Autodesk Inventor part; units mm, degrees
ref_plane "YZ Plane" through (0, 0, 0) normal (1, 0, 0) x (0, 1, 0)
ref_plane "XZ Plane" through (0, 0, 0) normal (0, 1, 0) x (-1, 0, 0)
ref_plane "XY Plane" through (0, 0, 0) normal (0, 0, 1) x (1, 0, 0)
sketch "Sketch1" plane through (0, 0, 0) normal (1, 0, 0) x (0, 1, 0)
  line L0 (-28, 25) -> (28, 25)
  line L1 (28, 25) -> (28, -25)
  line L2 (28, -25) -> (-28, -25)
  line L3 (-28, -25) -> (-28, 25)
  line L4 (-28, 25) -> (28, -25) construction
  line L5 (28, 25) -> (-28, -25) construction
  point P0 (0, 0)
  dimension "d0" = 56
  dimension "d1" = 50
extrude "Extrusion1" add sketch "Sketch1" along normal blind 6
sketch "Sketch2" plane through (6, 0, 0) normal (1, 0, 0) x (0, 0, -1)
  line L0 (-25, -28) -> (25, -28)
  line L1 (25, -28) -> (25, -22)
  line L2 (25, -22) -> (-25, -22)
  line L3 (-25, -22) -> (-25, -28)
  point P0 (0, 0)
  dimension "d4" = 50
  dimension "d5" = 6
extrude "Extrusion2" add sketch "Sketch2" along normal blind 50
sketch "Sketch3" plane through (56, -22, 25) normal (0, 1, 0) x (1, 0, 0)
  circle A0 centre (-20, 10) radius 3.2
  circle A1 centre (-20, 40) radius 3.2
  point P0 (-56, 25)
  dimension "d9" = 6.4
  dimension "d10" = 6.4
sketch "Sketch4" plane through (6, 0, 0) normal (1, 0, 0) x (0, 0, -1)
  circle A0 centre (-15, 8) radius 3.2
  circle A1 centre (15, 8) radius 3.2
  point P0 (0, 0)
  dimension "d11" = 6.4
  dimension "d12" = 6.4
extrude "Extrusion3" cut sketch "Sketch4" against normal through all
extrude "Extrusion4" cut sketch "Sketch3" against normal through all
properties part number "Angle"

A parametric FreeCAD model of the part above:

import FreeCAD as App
import Part
import Sketcher
from FreeCAD import Vector

doc = App.newDocument("Part")
body = doc.addObject("PartDesign::Body", "Body")

# Sketch on YZ plane
sketch1 = body.newObject("Sketcher::SketchObject", "Sketch")
sketch1.AttachmentSupport = (doc.getObject("YZ_Plane"), [""])
sketch1.MapMode = "FlatFace"
sketch1.addGeometry(Part.LineSegment(Vector(28, 25, 0), Vector(-28, 25, 0)), False)
sketch1.addGeometry(Part.LineSegment(Vector(-28, 25, 0), Vector(-28, -25, 0)), False)
sketch1.addGeometry(Part.LineSegment(Vector(-28, -25, 0), Vector(28, -25, 0)), False)
sketch1.addGeometry(Part.LineSegment(Vector(28, -25, 0), Vector(28, 25, 0)), False)
sketch1.addConstraint(Sketcher.Constraint("Coincident", 0, 2, 1, 1))
sketch1.addConstraint(Sketcher.Constraint("Coincident", 1, 2, 2, 1))
sketch1.addConstraint(Sketcher.Constraint("Coincident", 2, 2, 3, 1))
sketch1.addConstraint(Sketcher.Constraint("Coincident", 3, 2, 0, 1))
sketch1.addConstraint(Sketcher.Constraint("Horizontal", 0))
sketch1.addConstraint(Sketcher.Constraint("Vertical", 1))
sketch1.addConstraint(Sketcher.Constraint("Horizontal", 2))
sketch1.addConstraint(Sketcher.Constraint("Vertical", 3))
sketch1.addConstraint(Sketcher.Constraint("Symmetric", 0, 2, 2, 2, -1, 1))
sketch1.addConstraint(Sketcher.Constraint("DistanceX", 0, 2, 0, 1, 56.0))
sketch1.addConstraint(Sketcher.Constraint("DistanceY", 1, 2, 1, 1, 50.0))
pad1 = body.newObject("PartDesign::Pad", "Pad")
pad1.Profile = sketch1
pad1.Length = 6

# Sketch on YZ plane
sketch2 = body.newObject("Sketcher::SketchObject", "Sketch001")
sketch2.AttachmentSupport = (doc.getObject("YZ_Plane"), [""])
sketch2.MapMode = "FlatFace"
sketch2.AttachmentOffset = App.Placement(Vector(0, 0, 6), App.Rotation())
sketch2.addGeometry(Part.LineSegment(Vector(-22, 25, 0), Vector(-28, 25, 0)), False)
sketch2.addGeometry(Part.LineSegment(Vector(-28, 25, 0), Vector(-28, -25, 0)), False)
sketch2.addGeometry(Part.LineSegment(Vector(-28, -25, 0), Vector(-22, -25, 0)), False)
sketch2.addGeometry(Part.LineSegment(Vector(-22, -25, 0), Vector(-22, 25, 0)), False)
sketch2.addConstraint(Sketcher.Constraint("Coincident", 0, 2, 1, 1))
sketch2.addConstraint(Sketcher.Constraint("Coincident", 1, 2, 2, 1))
sketch2.addConstraint(Sketcher.Constraint("Coincident", 2, 2, 3, 1))
sketch2.addConstraint(Sketcher.Constraint("Coincident", 3, 2, 0, 1))
sketch2.addConstraint(Sketcher.Constraint("Horizontal", 0))
sketch2.addConstraint(Sketcher.Constraint("Vertical", 1))
sketch2.addConstraint(Sketcher.Constraint("Horizontal", 2))
sketch2.addConstraint(Sketcher.Constraint("Vertical", 3))
sketch2.addConstraint(Sketcher.Constraint("DistanceX", 0, 2, 0, 1, 6.0))
sketch2.addConstraint(Sketcher.Constraint("DistanceY", 1, 2, 1, 1, 50.0))
sketch2.addConstraint(Sketcher.Constraint("DistanceX", 0, 2, -1, 1, 28.0))
sketch2.addConstraint(Sketcher.Constraint("DistanceY", -1, 1, 0, 2, 25.0))
pad2 = body.newObject("PartDesign::Pad", "Pad001")
pad2.Profile = sketch2
pad2.Length = 50

# Sketch on YZ plane
sketch3 = body.newObject("Sketcher::SketchObject", "Sketch002")
sketch3.AttachmentSupport = (doc.getObject("YZ_Plane"), [""])
sketch3.MapMode = "FlatFace"
sketch3.AttachmentOffset = App.Placement(Vector(0, 0, 6), App.Rotation())
sketch3.addGeometry(Part.Circle(Vector(8, 15, 0), Vector(0, 0, 1), 3.2), False)
sketch3.addGeometry(Part.Circle(Vector(8, -15, 0), Vector(0, 0, 1), 3.2), False)
sketch3.addConstraint(Sketcher.Constraint("Equal", 0, 1))
sketch3.addConstraint(Sketcher.Constraint("Symmetric", 0, 3, 1, 3, -1))
sketch3.addConstraint(Sketcher.Constraint("Diameter", 0, 6.4))
sketch3.addConstraint(Sketcher.Constraint("DistanceX", -1, 1, 0, 3, 8.0))
sketch3.addConstraint(Sketcher.Constraint("DistanceY", -1, 1, 0, 3, 15.0))
pocket1 = body.newObject("PartDesign::Pocket", "Pocket")
pocket1.Profile = sketch3
pocket1.Type = "ThroughAll"

# Sketch on XZ plane
sketch4 = body.newObject("Sketcher::SketchObject", "Sketch003")
sketch4.AttachmentSupport = (doc.getObject("XZ_Plane"), [""])
sketch4.MapMode = "FlatFace"
sketch4.AttachmentOffset = App.Placement(Vector(0, 0, 22), App.Rotation())
sketch4.addGeometry(Part.Circle(Vector(36, 15, 0), Vector(0, 0, 1), 3.2), False)
sketch4.addGeometry(Part.Circle(Vector(36, -15, 0), Vector(0, 0, 1), 3.2), False)
sketch4.addConstraint(Sketcher.Constraint("Equal", 0, 1))
sketch4.addConstraint(Sketcher.Constraint("Symmetric", 0, 3, 1, 3, -1))
sketch4.addConstraint(Sketcher.Constraint("Diameter", 0, 6.4))
sketch4.addConstraint(Sketcher.Constraint("DistanceX", -1, 1, 0, 3, 36.0))
sketch4.addConstraint(Sketcher.Constraint("DistanceY", -1, 1, 0, 3, 15.0))
pocket2 = body.newObject("PartDesign::Pocket", "Pocket001")
pocket2.Profile = sketch4
pocket2.Type = "ThroughAll"
pocket2.Reversed = True

doc.recompute()
